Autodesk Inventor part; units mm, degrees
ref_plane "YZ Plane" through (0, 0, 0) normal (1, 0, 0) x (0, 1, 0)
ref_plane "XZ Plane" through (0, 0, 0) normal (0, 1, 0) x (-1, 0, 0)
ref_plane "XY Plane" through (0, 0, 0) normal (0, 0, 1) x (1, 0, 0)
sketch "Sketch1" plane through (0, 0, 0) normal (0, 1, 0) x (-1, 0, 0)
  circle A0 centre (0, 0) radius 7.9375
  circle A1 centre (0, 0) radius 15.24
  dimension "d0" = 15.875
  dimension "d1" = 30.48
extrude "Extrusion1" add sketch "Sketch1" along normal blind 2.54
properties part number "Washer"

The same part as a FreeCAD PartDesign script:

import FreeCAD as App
import Part
import Sketcher
from FreeCAD import Vector
Q = App.Units.Quantity

doc = App.newDocument("Part")
body = doc.addObject("PartDesign::Body", "Body")

# Sketch on XZ plane
sketch1 = body.newObject("Sketcher::SketchObject", "Sketch")
sketch1.AttachmentSupport = (doc.getObject("XZ_Plane"), [""])
sketch1.MapMode = "FlatFace"
sketch1.addGeometry([
    Part.Circle(Vector(0, 0, 0), Vector(0, 0, 1), 15),
    Part.Circle(Vector(0, 0, 0), Vector(0, 0, 1), 8),
], False)
sketch1.addConstraint([
    Sketcher.Constraint("Coincident", 0, 3, -1, 1),
    Sketcher.Constraint("Coincident", 1, 3, -1, 1),
    Sketcher.Constraint("Diameter", 0, Q("1.2 in")),
    Sketcher.Constraint("Diameter", 1, Q("0.625 in")),
])
pad1 = body.newObject("PartDesign::Pad", "Pad")
pad1.Profile = sketch1
pad1.Length = Q("0.1 in")
pad1.Reversed = True

doc.recompute()
